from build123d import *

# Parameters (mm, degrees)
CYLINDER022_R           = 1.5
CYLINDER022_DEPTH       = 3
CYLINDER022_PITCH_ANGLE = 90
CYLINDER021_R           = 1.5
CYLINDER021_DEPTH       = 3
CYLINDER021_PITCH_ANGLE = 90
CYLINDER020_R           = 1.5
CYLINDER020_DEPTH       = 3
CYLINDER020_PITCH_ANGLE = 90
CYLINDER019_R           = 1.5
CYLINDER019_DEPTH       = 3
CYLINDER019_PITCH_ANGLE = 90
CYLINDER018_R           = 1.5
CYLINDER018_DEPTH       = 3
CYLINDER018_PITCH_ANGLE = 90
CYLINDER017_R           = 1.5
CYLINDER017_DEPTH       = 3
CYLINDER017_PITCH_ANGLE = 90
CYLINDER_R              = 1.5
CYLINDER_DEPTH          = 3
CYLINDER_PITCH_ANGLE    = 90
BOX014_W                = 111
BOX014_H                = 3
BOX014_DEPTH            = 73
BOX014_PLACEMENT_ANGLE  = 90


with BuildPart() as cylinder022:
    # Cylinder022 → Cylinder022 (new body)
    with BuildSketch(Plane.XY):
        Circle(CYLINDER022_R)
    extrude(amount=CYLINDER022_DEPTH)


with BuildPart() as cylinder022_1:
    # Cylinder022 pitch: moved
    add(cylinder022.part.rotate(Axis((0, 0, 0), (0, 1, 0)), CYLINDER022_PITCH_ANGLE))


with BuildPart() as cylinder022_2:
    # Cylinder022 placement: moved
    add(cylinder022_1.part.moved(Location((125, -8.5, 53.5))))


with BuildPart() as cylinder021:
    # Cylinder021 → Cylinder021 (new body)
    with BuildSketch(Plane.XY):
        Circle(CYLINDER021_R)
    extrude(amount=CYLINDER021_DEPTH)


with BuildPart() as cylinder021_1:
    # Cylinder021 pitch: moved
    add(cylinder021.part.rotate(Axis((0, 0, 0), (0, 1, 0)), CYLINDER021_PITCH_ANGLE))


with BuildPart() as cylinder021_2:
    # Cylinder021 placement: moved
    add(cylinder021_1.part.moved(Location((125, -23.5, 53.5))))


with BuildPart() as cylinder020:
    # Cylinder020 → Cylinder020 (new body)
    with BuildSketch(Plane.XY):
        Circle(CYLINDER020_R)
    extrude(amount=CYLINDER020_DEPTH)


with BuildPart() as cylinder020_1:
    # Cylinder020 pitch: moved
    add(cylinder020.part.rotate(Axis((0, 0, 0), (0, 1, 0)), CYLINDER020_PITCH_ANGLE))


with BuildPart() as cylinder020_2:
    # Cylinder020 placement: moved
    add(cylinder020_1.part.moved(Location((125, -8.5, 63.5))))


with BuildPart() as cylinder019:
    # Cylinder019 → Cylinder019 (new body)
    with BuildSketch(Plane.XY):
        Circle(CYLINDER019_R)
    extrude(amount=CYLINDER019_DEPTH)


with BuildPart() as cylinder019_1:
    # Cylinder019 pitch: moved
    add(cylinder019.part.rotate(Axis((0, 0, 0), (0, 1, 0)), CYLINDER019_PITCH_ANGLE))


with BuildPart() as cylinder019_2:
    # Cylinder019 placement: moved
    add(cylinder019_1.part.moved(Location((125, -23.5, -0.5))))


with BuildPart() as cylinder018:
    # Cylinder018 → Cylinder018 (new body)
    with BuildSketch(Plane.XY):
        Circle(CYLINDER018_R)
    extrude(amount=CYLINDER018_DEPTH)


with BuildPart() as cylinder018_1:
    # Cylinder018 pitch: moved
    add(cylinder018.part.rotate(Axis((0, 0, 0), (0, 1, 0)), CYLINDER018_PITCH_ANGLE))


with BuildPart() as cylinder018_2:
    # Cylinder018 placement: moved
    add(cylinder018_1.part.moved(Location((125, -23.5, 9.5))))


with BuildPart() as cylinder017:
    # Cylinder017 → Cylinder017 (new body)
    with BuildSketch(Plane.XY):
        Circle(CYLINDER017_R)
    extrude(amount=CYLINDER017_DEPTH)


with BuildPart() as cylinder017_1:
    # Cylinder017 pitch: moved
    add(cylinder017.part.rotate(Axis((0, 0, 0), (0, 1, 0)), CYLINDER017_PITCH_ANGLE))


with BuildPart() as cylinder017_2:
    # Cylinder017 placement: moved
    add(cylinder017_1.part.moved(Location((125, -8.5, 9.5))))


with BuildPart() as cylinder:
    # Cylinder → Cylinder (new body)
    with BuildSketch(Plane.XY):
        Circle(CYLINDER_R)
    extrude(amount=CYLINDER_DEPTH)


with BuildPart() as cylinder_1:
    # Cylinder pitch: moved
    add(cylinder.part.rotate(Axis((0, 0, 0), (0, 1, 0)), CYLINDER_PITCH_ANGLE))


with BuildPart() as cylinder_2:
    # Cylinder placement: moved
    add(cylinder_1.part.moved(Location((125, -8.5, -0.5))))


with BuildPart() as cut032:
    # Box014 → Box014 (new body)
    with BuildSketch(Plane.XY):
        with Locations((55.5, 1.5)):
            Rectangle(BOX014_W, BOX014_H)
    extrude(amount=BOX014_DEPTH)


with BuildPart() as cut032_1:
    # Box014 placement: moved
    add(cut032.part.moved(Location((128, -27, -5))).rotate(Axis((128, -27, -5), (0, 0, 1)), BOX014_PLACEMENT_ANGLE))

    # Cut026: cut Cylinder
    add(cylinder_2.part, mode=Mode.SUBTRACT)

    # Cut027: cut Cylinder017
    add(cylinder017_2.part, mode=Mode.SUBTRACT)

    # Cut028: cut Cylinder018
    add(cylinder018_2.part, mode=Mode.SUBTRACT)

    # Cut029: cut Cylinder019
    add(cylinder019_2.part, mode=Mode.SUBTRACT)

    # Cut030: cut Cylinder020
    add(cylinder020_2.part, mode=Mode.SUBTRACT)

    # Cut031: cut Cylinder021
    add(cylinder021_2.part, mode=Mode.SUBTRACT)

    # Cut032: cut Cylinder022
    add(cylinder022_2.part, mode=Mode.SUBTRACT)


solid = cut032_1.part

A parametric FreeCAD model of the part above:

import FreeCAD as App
import Part
import Sketcher

V = App.Vector

doc = App.newDocument("Part")
body = doc.addObject("PartDesign::Body", "Body")

sketch1 = body.newObject("Sketcher::SketchObject", "Sketch")
sketch1.AttachmentSupport = (doc.getObject("XY_Plane"), [""])
sketch1.MapMode = "FlatFace"
sketch1.addGeometry(Part.Circle(V(0, 0, 0), V(0, 0, 1), 1.5), False)
sketch1.addConstraint(Sketcher.Constraint("Coincident", 0, 3, -1, 1))
sketch1.addConstraint(Sketcher.Constraint("Diameter", 0, 3.0))
pad1 = body.newObject("PartDesign::Pad", "Pad")
pad1.Profile = sketch1
pad1.Length = 3
body2 = doc.addObject("PartDesign::Body", "Body001")
doc.recompute()

body.Placement = App.Placement(V(0, 0, 0), App.Rotation(V(0, 1, 0), 90))
boolean = body2.newObject("PartDesign::Boolean", "Boolean")
boolean.Type = "Fuse"
boolean.addObjects([body])
body3 = doc.addObject("PartDesign::Body", "Body002")
doc.recompute()

body2.Placement = App.Placement(V(125, -8.5, 53.5), App.Rotation(V(0, 0, 1), 0))
boolean2 = body3.newObject("PartDesign::Boolean", "Boolean001")
boolean2.Type = "Fuse"
boolean2.addObjects([body2])
body4 = doc.addObject("PartDesign::Body", "Body003")

sketch2 = body4.newObject("Sketcher::SketchObject", "Sketch001")
sketch2.AttachmentSupport = (doc.getObject("XY_Plane003"), [""])
sketch2.MapMode = "FlatFace"
sketch2.addGeometry(Part.Circle(V(0, 0, 0), V(0, 0, 1), 1.5), False)
sketch2.addConstraint(Sketcher.Constraint("Coincident", 0, 3, -1, 1))
sketch2.addConstraint(Sketcher.Constraint("Diameter", 0, 3.0))
pad2 = body4.newObject("PartDesign::Pad", "Pad001")
pad2.Profile = sketch2
pad2.Length = 3
body5 = doc.addObject("PartDesign::Body", "Body004")
doc.recompute()

body4.Placement = App.Placement(V(0, 0, 0), App.Rotation(V(0, 1, 0), 90))
boolean3 = body5.newObject("PartDesign::Boolean", "Boolean002")
boolean3.Type = "Fuse"
boolean3.addObjects([body4])
body6 = doc.addObject("PartDesign::Body", "Body005")
doc.recompute()

body5.Placement = App.Placement(V(125, -23.5, 53.5), App.Rotation(V(0, 0, 1), 0))
boolean4 = body6.newObject("PartDesign::Boolean", "Boolean003")
boolean4.Type = "Fuse"
boolean4.addObjects([body5])
body7 = doc.addObject("PartDesign::Body", "Body006")

sketch3 = body7.newObject("Sketcher::SketchObject", "Sketch002")
sketch3.AttachmentSupport = (doc.getObject("XY_Plane006"), [""])
sketch3.MapMode = "FlatFace"
sketch3.addGeometry(Part.Circle(V(0, 0, 0), V(0, 0, 1), 1.5), False)
sketch3.addConstraint(Sketcher.Constraint("Coincident", 0, 3, -1, 1))
sketch3.addConstraint(Sketcher.Constraint("Diameter", 0, 3.0))
pad3 = body7.newObject("PartDesign::Pad", "Pad002")
pad3.Profile = sketch3
pad3.Length = 3
body8 = doc.addObject("PartDesign::Body", "Body007")
doc.recompute()

body7.Placement = App.Placement(V(0, 0, 0), App.Rotation(V(0, 1, 0), 90))
boolean5 = body8.newObject("PartDesign::Boolean", "Boolean004")
boolean5.Type = "Fuse"
boolean5.addObjects([body7])
body9 = doc.addObject("PartDesign::Body", "Body008")
doc.recompute()

body8.Placement = App.Placement(V(125, -8.5, 63.5), App.Rotation(V(0, 0, 1), 0))
boolean6 = body9.newObject("PartDesign::Boolean", "Boolean005")
boolean6.Type = "Fuse"
boolean6.addObjects([body8])
body10 = doc.addObject("PartDesign::Body", "Body009")

sketch4 = body10.newObject("Sketcher::SketchObject", "Sketch003")
sketch4.AttachmentSupport = (doc.getObject("XY_Plane009"), [""])
sketch4.MapMode = "FlatFace"
sketch4.addGeometry(Part.Circle(V(0, 0, 0), V(0, 0, 1), 1.5), False)
sketch4.addConstraint(Sketcher.Constraint("Coincident", 0, 3, -1, 1))
sketch4.addConstraint(Sketcher.Constraint("Diameter", 0, 3.0))
pad4 = body10.newObject("PartDesign::Pad", "Pad003")
pad4.Profile = sketch4
pad4.Length = 3
body11 = doc.addObject("PartDesign::Body", "Body010")
doc.recompute()

body10.Placement = App.Placement(V(0, 0, 0), App.Rotation(V(0, 1, 0), 90))
boolean7 = body11.newObject("PartDesign::Boolean", "Boolean006")
boolean7.Type = "Fuse"
boolean7.addObjects([body10])
body12 = doc.addObject("PartDesign::Body", "Body011")
doc.recompute()

body11.Placement = App.Placement(V(125, -23.5, -0.5), App.Rotation(V(0, 0, 1), 0))
boolean8 = body12.newObject("PartDesign::Boolean", "Boolean007")
boolean8.Type = "Fuse"
boolean8.addObjects([body11])
body13 = doc.addObject("PartDesign::Body", "Body012")

sketch5 = body13.newObject("Sketcher::SketchObject", "Sketch004")
sketch5.AttachmentSupport = (doc.getObject("XY_Plane012"), [""])
sketch5.MapMode = "FlatFace"
sketch5.addGeometry(Part.Circle(V(0, 0, 0), V(0, 0, 1), 1.5), False)
sketch5.addConstraint(Sketcher.Constraint("Coincident", 0, 3, -1, 1))
sketch5.addConstraint(Sketcher.Constraint("Diameter", 0, 3.0))
pad5 = body13.newObject("PartDesign::Pad", "Pad004")
pad5.Profile = sketch5
pad5.Length = 3
body14 = doc.addObject("PartDesign::Body", "Body013")
doc.recompute()

body13.Placement = App.Placement(V(0, 0, 0), App.Rotation(V(0, 1, 0), 90))
boolean9 = body14.newObject("PartDesign::Boolean", "Boolean008")
boolean9.Type = "Fuse"
boolean9.addObjects([body13])
body15 = doc.addObject("PartDesign::Body", "Body014")
doc.recompute()

body14.Placement = App.Placement(V(125, -23.5, 9.5), App.Rotation(V(0, 0, 1), 0))
boolean10 = body15.newObject("PartDesign::Boolean", "Boolean009")
boolean10.Type = "Fuse"
boolean10.addObjects([body14])
body16 = doc.addObject("PartDesign::Body", "Body015")

sketch6 = body16.newObject("Sketcher::SketchObject", "Sketch005")
sketch6.AttachmentSupport = (doc.getObject("XY_Plane015"), [""])
sketch6.MapMode = "FlatFace"
sketch6.addGeometry(Part.Circle(V(0, 0, 0), V(0, 0, 1), 1.5), False)
sketch6.addConstraint(Sketcher.Constraint("Coincident", 0, 3, -1, 1))
sketch6.addConstraint(Sketcher.Constraint("Diameter", 0, 3.0))
pad6 = body16.newObject("PartDesign::Pad", "Pad005")
pad6.Profile = sketch6
pad6.Length = 3
body17 = doc.addObject("PartDesign::Body", "Body016")
doc.recompute()

body16.Placement = App.Placement(V(0, 0, 0), App.Rotation(V(0, 1, 0), 90))
boolean11 = body17.newObject("PartDesign::Boolean", "Boolean010")
boolean11.Type = "Fuse"
boolean11.addObjects([body16])
body18 = doc.addObject("PartDesign::Body", "Body017")
doc.recompute()

body17.Placement = App.Placement(V(125, -8.5, 9.5), App.Rotation(V(0, 0, 1), 0))
boolean12 = body18.newObject("PartDesign::Boolean", "Boolean011")
boolean12.Type = "Fuse"
boolean12.addObjects([body17])
body19 = doc.addObject("PartDesign::Body", "Body018")

sketch7 = body19.newObject("Sketcher::SketchObject", "Sketch006")
sketch7.AttachmentSupport = (doc.getObject("XY_Plane018"), [""])
sketch7.MapMode = "FlatFace"
sketch7.addGeometry(Part.Circle(V(0, 0, 0), V(0, 0, 1), 1.5), False)
sketch7.addConstraint(Sketcher.Constraint("Coincident", 0, 3, -1, 1))
sketch7.addConstraint(Sketcher.Constraint("Diameter", 0, 3.0))
pad7 = body19.newObject("PartDesign::Pad", "Pad006")
pad7.Profile = sketch7
pad7.Length = 3
body20 = doc.addObject("PartDesign::Body", "Body019")
doc.recompute()

body19.Placement = App.Placement(V(0, 0, 0), App.Rotation(V(0, 1, 0), 90))
boolean13 = body20.newObject("PartDesign::Boolean", "Boolean012")
boolean13.Type = "Fuse"
boolean13.addObjects([body19])
body21 = doc.addObject("PartDesign::Body", "Body020")
doc.recompute()

body20.Placement = App.Placement(V(125, -8.5, -0.5), App.Rotation(V(0, 0, 1), 0))
boolean14 = body21.newObject("PartDesign::Boolean", "Boolean013")
boolean14.Type = "Fuse"
boolean14.addObjects([body20])
body22 = doc.addObject("PartDesign::Body", "Body021")

sketch8 = body22.newObject("Sketcher::SketchObject", "Sketch007")
sketch8.AttachmentSupport = (doc.getObject("XY_Plane021"), [""])
sketch8.MapMode = "FlatFace"
sketch8.addGeometry(Part.LineSegment(V(0, 3, 0), V(0, 0, 0)), False)
sketch8.addGeometry(Part.LineSegment(V(0, 0, 0), V(111, 0, 0)), False)
sketch8.addGeometry(Part.LineSegment(V(111, 0, 0), V(111, 3, 0)), False)
sketch8.addGeometry(Part.LineSegment(V(111, 3, 0), V(0, 3, 0)), False)
sketch8.addConstraint(Sketcher.Constraint("Coincident", 0, 2, 1, 1))
sketch8.addConstraint(Sketcher.Constraint("Coincident", 1, 2, 2, 1))
sketch8.addConstraint(Sketcher.Constraint("Coincident", 2, 2, 3, 1))
sketch8.addConstraint(Sketcher.Constraint("Coincident", 3, 2, 0, 1))
sketch8.addConstraint(Sketcher.Constraint("Vertical", 0))
sketch8.addConstraint(Sketcher.Constraint("Horizontal", 1))
sketch8.addConstraint(Sketcher.Constraint("Vertical", 2))
sketch8.addConstraint(Sketcher.Constraint("Horizontal", 3))
sketch8.addConstraint(Sketcher.Constraint("Coincident", 0, 2, -1, 1))
sketch8.addConstraint(Sketcher.Constraint("DistanceX", 1, 1, 1, 2, 111.0))
sketch8.addConstraint(Sketcher.Constraint("DistanceY", 0, 2, 0, 1, 3.0))
pad8 = body22.newObject("PartDesign::Pad", "Pad007")
pad8.Profile = sketch8
pad8.Length = 73
body23 = doc.addObject("PartDesign::Body", "Body022")
doc.recompute()

body22.Placement = App.Placement(V(128, -27, -5), App.Rotation(V(0, 0, 1), 90))
boolean15 = body23.newObject("PartDesign::Boolean", "Boolean014")
boolean15.Type = "Fuse"
boolean15.addObjects([body22])
doc.recompute()

boolean16 = body23.newObject("PartDesign::Boolean", "Boolean015")
boolean16.Type = "Cut"
boolean16.addObjects([body21])
doc.recompute()

boolean17 = body23.newObject("PartDesign::Boolean", "Boolean016")
boolean17.Type = "Cut"
boolean17.addObjects([body18])
doc.recompute()

boolean18 = body23.newObject("PartDesign::Boolean", "Boolean017")
boolean18.Type = "Cut"
boolean18.addObjects([body15])
doc.recompute()

boolean19 = body23.newObject("PartDesign::Boolean", "Boolean018")
boolean19.Type = "Cut"
boolean19.addObjects([body12])
doc.recompute()

boolean20 = body23.newObject("PartDesign::Boolean", "Boolean019")
boolean20.Type = "Cut"
boolean20.addObjects([body9])
doc.recompute()

boolean21 = body23.newObject("PartDesign::Boolean", "Boolean020")
boolean21.Type = "Cut"
boolean21.addObjects([body6])
doc.recompute()

boolean22 = body23.newObject("PartDesign::Boolean", "Boolean021")
boolean22.Type = "Cut"
boolean22.addObjects([body3])

doc.recompute()
